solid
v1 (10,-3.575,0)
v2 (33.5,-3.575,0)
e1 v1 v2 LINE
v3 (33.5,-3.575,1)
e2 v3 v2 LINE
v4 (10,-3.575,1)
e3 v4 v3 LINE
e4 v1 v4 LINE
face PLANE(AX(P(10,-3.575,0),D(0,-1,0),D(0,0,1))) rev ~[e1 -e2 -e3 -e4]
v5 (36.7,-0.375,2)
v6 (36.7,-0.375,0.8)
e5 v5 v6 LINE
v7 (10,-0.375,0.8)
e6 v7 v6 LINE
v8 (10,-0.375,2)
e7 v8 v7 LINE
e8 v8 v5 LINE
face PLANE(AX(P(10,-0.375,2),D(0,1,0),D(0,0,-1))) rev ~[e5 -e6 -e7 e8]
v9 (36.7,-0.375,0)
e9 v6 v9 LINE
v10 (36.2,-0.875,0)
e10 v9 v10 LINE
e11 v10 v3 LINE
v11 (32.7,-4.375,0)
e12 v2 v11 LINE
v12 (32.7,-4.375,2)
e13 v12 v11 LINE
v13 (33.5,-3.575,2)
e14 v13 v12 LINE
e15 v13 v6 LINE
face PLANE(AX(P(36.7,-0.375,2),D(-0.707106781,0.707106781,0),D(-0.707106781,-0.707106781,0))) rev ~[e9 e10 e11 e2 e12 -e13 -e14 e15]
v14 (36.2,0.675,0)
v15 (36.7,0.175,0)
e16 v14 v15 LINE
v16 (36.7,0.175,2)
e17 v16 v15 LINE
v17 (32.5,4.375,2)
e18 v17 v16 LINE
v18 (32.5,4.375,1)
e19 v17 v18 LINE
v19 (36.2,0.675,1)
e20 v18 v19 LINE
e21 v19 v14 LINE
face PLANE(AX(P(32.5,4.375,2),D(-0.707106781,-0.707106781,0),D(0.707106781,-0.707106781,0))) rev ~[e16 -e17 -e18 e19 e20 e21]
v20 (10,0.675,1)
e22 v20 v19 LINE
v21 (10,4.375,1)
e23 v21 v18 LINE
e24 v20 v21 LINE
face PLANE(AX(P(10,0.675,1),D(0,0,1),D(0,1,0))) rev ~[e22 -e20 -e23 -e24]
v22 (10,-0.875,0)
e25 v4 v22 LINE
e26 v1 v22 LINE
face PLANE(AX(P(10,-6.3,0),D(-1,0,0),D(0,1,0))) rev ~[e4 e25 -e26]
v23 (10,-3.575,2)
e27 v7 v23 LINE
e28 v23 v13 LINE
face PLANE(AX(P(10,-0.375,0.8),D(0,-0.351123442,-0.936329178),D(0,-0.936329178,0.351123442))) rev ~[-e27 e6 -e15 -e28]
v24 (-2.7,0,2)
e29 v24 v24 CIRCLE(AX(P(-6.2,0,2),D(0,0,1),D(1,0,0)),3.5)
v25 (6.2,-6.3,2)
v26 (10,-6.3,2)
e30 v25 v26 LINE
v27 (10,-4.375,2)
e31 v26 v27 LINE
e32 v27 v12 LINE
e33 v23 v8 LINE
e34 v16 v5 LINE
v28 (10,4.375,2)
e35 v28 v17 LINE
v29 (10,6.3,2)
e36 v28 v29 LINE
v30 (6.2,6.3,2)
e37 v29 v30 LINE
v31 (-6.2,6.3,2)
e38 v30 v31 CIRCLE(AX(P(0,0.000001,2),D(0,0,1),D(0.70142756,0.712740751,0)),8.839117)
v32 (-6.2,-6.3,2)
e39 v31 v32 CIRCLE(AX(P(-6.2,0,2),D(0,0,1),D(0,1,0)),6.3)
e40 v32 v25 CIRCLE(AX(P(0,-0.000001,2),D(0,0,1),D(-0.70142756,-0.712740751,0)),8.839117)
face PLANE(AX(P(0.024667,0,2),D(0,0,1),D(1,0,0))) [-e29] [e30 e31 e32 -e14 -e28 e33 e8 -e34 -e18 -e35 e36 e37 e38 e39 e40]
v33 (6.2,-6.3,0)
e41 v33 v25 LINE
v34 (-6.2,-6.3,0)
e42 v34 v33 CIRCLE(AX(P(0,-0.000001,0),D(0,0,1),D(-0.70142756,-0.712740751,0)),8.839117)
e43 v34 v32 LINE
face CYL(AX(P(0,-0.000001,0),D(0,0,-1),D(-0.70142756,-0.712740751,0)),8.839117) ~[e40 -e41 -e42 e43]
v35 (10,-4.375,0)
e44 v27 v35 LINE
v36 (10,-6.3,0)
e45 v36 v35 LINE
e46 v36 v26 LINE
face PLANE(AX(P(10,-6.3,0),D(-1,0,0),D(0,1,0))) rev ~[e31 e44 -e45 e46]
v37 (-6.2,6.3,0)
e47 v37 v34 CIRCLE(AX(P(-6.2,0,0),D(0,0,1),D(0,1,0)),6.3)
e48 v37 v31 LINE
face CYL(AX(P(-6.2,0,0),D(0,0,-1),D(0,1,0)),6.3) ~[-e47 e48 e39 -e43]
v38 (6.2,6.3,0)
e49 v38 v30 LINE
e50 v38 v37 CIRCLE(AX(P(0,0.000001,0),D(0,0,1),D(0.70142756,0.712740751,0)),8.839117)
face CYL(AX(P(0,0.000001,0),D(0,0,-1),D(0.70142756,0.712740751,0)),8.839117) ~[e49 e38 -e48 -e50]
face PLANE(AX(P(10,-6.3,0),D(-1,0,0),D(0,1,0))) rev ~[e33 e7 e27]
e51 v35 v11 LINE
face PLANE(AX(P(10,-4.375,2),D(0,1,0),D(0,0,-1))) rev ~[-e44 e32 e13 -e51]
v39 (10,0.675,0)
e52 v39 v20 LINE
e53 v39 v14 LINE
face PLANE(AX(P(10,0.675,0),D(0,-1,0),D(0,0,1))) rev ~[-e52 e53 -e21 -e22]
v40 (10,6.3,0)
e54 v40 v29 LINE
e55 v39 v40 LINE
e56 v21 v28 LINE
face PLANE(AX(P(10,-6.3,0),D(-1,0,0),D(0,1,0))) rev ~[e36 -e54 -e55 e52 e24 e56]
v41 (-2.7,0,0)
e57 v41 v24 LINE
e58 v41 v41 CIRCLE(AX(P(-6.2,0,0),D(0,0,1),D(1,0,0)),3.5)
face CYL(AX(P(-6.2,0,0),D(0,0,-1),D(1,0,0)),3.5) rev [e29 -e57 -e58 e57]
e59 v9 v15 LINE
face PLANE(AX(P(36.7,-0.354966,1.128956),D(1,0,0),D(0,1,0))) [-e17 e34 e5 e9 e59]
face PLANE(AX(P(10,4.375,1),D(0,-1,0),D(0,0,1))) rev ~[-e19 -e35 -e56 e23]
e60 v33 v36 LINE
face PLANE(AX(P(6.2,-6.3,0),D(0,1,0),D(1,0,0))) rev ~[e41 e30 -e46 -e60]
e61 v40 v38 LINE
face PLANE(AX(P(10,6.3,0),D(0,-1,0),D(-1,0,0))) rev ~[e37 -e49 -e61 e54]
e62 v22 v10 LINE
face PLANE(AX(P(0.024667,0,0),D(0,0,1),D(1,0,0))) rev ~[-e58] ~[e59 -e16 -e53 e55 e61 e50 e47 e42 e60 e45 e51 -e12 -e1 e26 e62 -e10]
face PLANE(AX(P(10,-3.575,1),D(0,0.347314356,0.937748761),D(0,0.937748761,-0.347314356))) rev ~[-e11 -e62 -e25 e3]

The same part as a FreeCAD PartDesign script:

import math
import FreeCAD as App
import Part
import Sketcher

V = App.Vector
Q = App.Units.Quantity

doc = App.newDocument("Part")
body = doc.addObject("PartDesign::Body", "Body")

sketch1 = body.newObject("Sketcher::SketchObject", "Sketch")
sketch1.AttachmentSupport = (doc.getObject("XY_Plane"), [""])
sketch1.MapMode = "FlatFace"
sketch1.addGeometry(Part.LineSegment(V(6.2, -6.3, 0), V(10, -6.3, 0)), False)
sketch1.addGeometry(Part.LineSegment(V(10, -6.3, 0), V(10, 6.3, 0)), False)
sketch1.addGeometry(Part.LineSegment(V(10, 6.3, 0), V(6.2, 6.3, 0)), False)
sketch1.addGeometry(Part.ArcOfCircle(Part.Circle(V(0, 0, 0), V(0, 0, 1), 8.8), math.radians(45), math.radians(135)), False)
sketch1.addGeometry(Part.ArcOfCircle(Part.Circle(V(-6.2, 0, 0), V(0, 0, 1), 6.3), math.radians(90), math.radians(270)), False)
sketch1.addGeometry(Part.ArcOfCircle(Part.Circle(V(0, 0, 0), V(0, 0, 1), 8.8), math.radians(-135), math.radians(-45)), False)
sketch1.addGeometry(Part.Circle(V(-6.2, 0, 0), V(0, 0, 1), 3.5), False)
sketch1.addConstraint(Sketcher.Constraint("Coincident", 0, 2, 1, 1))
sketch1.addConstraint(Sketcher.Constraint("Coincident", 1, 2, 2, 1))
sketch1.addConstraint(Sketcher.Constraint("Coincident", 2, 2, 3, 1))
sketch1.addConstraint(Sketcher.Constraint("Coincident", 3, 2, 4, 1))
sketch1.addConstraint(Sketcher.Constraint("Coincident", 4, 2, 5, 1))
sketch1.addConstraint(Sketcher.Constraint("Coincident", 5, 2, 0, 1))
sketch1.addConstraint(Sketcher.Constraint("Horizontal", 0))
sketch1.addConstraint(Sketcher.Constraint("Vertical", 1))
sketch1.addConstraint(Sketcher.Constraint("Horizontal", 2))
sketch1.addConstraint(Sketcher.Constraint("Coincident", 3, 3, -1, 1))
sketch1.addConstraint(Sketcher.Constraint("Coincident", 5, 3, -1, 1))
sketch1.addConstraint(Sketcher.Constraint("Coincident", 6, 3, 4, 3))
sketch1.addConstraint(Sketcher.Constraint("Equal", 3, 5))
sketch1.addConstraint(Sketcher.Constraint("PointOnObject", 4, 3, -1))
sketch1.addConstraint(Sketcher.Constraint("Horizontal", 2, 2, 3, 2))
sketch1.addConstraint(Sketcher.Constraint("Horizontal", 0, 2, 4, 2))
sketch1.addConstraint(Sketcher.Constraint("Vertical", 6, 3, 3, 2))
sketch1.addConstraint(Sketcher.Constraint("Diameter", 6, Q("7 mm")))
sketch1.addConstraint(Sketcher.Constraint("Radius", 4, Q("6.3 mm")))
sketch1.addConstraint(Sketcher.Constraint("DistanceX", 0, 1, 0, 2, Q("3.8 mm")))
sketch1.addConstraint(Sketcher.Constraint("DistanceX", -1, 1, 0, 2, Q("10 mm")))
pad1 = body.newObject("PartDesign::Pad", "Pad")
pad1.Profile = sketch1
pad1.Length = 2

sketch2 = body.newObject("Sketcher::SketchObject", "Sketch001")
sketch2.AttachmentSupport = (doc.getObject("YZ_Plane"), [""])
sketch2.MapMode = "FlatFace"
sketch2.AttachmentOffset = App.Placement(V(0, 0, 10), App.Rotation())
sketch2.addGeometry(Part.LineSegment(V(-0.9, 0, 0), V(0.7, 0, 0)), False)
sketch2.addGeometry(Part.LineSegment(V(0.7, 0, 0), V(0.7, 1, 0)), False)
sketch2.addGeometry(Part.LineSegment(V(0.7, 1, 0), V(4.4, 1, 0)), False)
sketch2.addGeometry(Part.LineSegment(V(4.4, 1, 0), V(4.4, 2, 0)), False)
sketch2.addGeometry(Part.LineSegment(V(4.4, 2, 0), V(-0.4, 2, 0)), False)
sketch2.addGeometry(Part.LineSegment(V(-0.4, 2, 0), V(-0.4, 0.8, 0)), False)
sketch2.addGeometry(Part.LineSegment(V(-0.4, 0.8, 0), V(-3.6, 2, 0)), False)
sketch2.addGeometry(Part.LineSegment(V(-3.6, 2, 0), V(-4.4, 2, 0)), False)
sketch2.addGeometry(Part.LineSegment(V(-4.4, 2, 0), V(-4.4, 0, 0)), False)
sketch2.addGeometry(Part.LineSegment(V(-4.4, 0, 0), V(-3.6, 0, 0)), False)
sketch2.addGeometry(Part.LineSegment(V(-3.6, 0, 0), V(-3.6, 1, 0)), False)
sketch2.addGeometry(Part.LineSegment(V(-3.6, 1, 0), V(-0.9, 0, 0)), False)
sketch2.addConstraint(Sketcher.Constraint("Coincident", 0, 2, 1, 1))
sketch2.addConstraint(Sketcher.Constraint("Coincident", 1, 2, 2, 1))
sketch2.addConstraint(Sketcher.Constraint("Coincident", 2, 2, 3, 1))
sketch2.addConstraint(Sketcher.Constraint("Coincident", 3, 2, 4, 1))
sketch2.addConstraint(Sketcher.Constraint("Coincident", 4, 2, 5, 1))
sketch2.addConstraint(Sketcher.Constraint("Coincident", 5, 2, 6, 1))
sketch2.addConstraint(Sketcher.Constraint("Coincident", 6, 2, 7, 1))
sketch2.addConstraint(Sketcher.Constraint("Coincident", 7, 2, 8, 1))
sketch2.addConstraint(Sketcher.Constraint("Coincident", 8, 2, 9, 1))
sketch2.addConstraint(Sketcher.Constraint("Coincident", 9, 2, 10, 1))
sketch2.addConstraint(Sketcher.Constraint("Coincident", 10, 2, 11, 1))
sketch2.addConstraint(Sketcher.Constraint("Coincident", 11, 2, 0, 1))
sketch2.addConstraint(Sketcher.Constraint("Horizontal", 0))
sketch2.addConstraint(Sketcher.Constraint("Vertical", 1))
sketch2.addConstraint(Sketcher.Constraint("Horizontal", 2))
sketch2.addConstraint(Sketcher.Constraint("Vertical", 3))
sketch2.addConstraint(Sketcher.Constraint("Horizontal", 4))
sketch2.addConstraint(Sketcher.Constraint("Vertical", 5))
sketch2.addConstraint(Sketcher.Constraint("Horizontal", 7))
sketch2.addConstraint(Sketcher.Constraint("Vertical", 8))
sketch2.addConstraint(Sketcher.Constraint("Horizontal", 9))
sketch2.addConstraint(Sketcher.Constraint("Vertical", 10))
sketch2.addConstraint(Sketcher.Constraint("Symmetric", 3, 2, 7, 2, -2))
sketch2.addConstraint(Sketcher.Constraint("PointOnObject", 0, 2, -1))
sketch2.addConstraint(Sketcher.Constraint("PointOnObject", 8, 2, -1))
sketch2.addConstraint(Sketcher.Constraint("Horizontal", 2, 2, 10, 2))
sketch2.addConstraint(Sketcher.Constraint("Vertical", 6, 2, 9, 2))
sketch2.addConstraint(Sketcher.Constraint("Equal", 1, 3))
sketch2.addConstraint(Sketcher.Constraint("DistanceY", 1, 1, 1, 2, Q("1 mm")))
sketch2.addConstraint(Sketcher.Constraint("DistanceX", 2, 1, 2, 2, Q("3.7 mm")))
sketch2.addConstraint(Sketcher.Constraint("DistanceX", 7, 2, 7, 1, Q("0.8 mm")))
sketch2.addConstraint(Sketcher.Constraint("DistanceY", 5, 2, 5, 1, Q("1.2 mm")))
sketch2.addConstraint(Sketcher.Constraint("DistanceX", 7, 2, 4, 2, Q("4 mm")))
sketch2.addConstraint(Sketcher.Constraint("DistanceX", 0, 1, 0, 2, Q("1.55 mm")))
sketch2.addConstraint(Sketcher.Constraint("DistanceX", 4, 2, 4, 1, Q("4.75 mm")))
pad2 = body.newObject("PartDesign::Pad", "Pad001")
pad2.Profile = sketch2
pad2.Length = 26.7

sketch3 = body.newObject("Sketcher::SketchObject", "Sketch002")
sketch3.AttachmentSupport = (doc.getObject("XY_Plane"), [""])
sketch3.MapMode = "FlatFace"
sketch3.AttachmentOffset = App.Placement(V(0, 0, 2), App.Rotation())
sketch3.addGeometry(Part.LineSegment(V(36.7, 0.2, 0), V(36.7, 4.4, 0)), False)
sketch3.addGeometry(Part.LineSegment(V(36.7, 4.4, 0), V(32.5, 4.4, 0)), False)
sketch3.addGeometry(Part.LineSegment(V(32.5, 4.4, 0), V(36.7, 0.2, 0)), False)
sketch3.addGeometry(Part.LineSegment(V(32.7, -4.4, 0), V(36.7, -4.4, 0)), False)
sketch3.addGeometry(Part.LineSegment(V(36.7, -4.4, 0), V(36.7, -0.4, 0)), False)
sketch3.addGeometry(Part.LineSegment(V(36.7, -0.4, 0), V(32.7, -4.4, 0)), False)
sketch3.addConstraint(Sketcher.Constraint("Coincident", 0, 2, 1, 1))
sketch3.addConstraint(Sketcher.Constraint("Coincident", 1, 2, 2, 1))
sketch3.addConstraint(Sketcher.Constraint("Coincident", 2, 2, 0, 1))
sketch3.addConstraint(Sketcher.Constraint("Coincident", 3, 2, 4, 1))
sketch3.addConstraint(Sketcher.Constraint("Coincident", 4, 2, 5, 1))
sketch3.addConstraint(Sketcher.Constraint("Coincident", 5, 2, 3, 1))
sketch3.addConstraint(Sketcher.Constraint("Vertical", 0))
sketch3.addConstraint(Sketcher.Constraint("Horizontal", 1))
sketch3.addConstraint(Sketcher.Constraint("Horizontal", 3))
sketch3.addConstraint(Sketcher.Constraint("Vertical", 4))
sketch3.addConstraint(Sketcher.Constraint("Symmetric", 0, 2, 3, 2, -1))
sketch3.addConstraint(Sketcher.Constraint("Perpendicular", 2, 5))
sketch3.addConstraint(Sketcher.Constraint("Equal", 1, 0))
sketch3.addConstraint(Sketcher.Constraint("DistanceX", 3, 1, 3, 2, Q("4 mm")))
sketch3.addConstraint(Sketcher.Constraint("DistanceX", 1, 2, 1, 1, Q("4.2 mm")))
sketch3.addConstraint(Sketcher.Constraint("DistanceX", -1, 1, 0, 2, Q("36.7 mm")))
sketch3.addConstraint(Sketcher.Constraint("DistanceY", 3, 2, 2, 2, Q("4.55 mm")))
pocket1 = body.newObject("PartDesign::Pocket", "Pocket")
pocket1.Profile = sketch3
pocket1.Type = "ThroughAll"

doc.recompute()
